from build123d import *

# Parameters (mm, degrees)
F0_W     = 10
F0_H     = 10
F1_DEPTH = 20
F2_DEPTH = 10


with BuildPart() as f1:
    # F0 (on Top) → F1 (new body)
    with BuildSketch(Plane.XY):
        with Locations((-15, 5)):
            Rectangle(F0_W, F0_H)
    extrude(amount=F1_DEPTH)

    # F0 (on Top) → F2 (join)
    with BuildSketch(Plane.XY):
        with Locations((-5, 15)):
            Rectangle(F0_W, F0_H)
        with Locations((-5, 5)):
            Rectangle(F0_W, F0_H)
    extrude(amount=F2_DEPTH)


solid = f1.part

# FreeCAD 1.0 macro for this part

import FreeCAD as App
import Part
import Sketcher

V = App.Vector
Q = App.Units.Quantity

doc = App.newDocument("Part")
body = doc.addObject("PartDesign::Body", "Body")

# Sketch on XY plane
sketch1 = body.newObject("Sketcher::SketchObject", "Sketch")
sketch1.AttachmentSupport = (doc.getObject("XY_Plane"), [""])
sketch1.MapMode = "FlatFace"
sketch1.addGeometry([
    Part.LineSegment(V(-20, 10, 0), V(-20, 0, 0)),
    Part.LineSegment(V(-20, 0, 0), V(-10, 0, 0)),
    Part.LineSegment(V(-10, 0, 0), V(-10, 10, 0)),
    Part.LineSegment(V(-10, 10, 0), V(-20, 10, 0)),
], False)
sketch1.addConstraint([
    Sketcher.Constraint("Coincident", 0, 2, 1, 1),
    Sketcher.Constraint("Coincident", 1, 2, 2, 1),
    Sketcher.Constraint("Coincident", 2, 2, 3, 1),
    Sketcher.Constraint("Coincident", 3, 2, 0, 1),
    Sketcher.Constraint("Vertical", 0),
    Sketcher.Constraint("Horizontal", 1),
    Sketcher.Constraint("Vertical", 2),
    Sketcher.Constraint("Horizontal", 3),
    Sketcher.Constraint("PointOnObject", 0, 2, -1),
    Sketcher.Constraint("Equal", 3, 0),
    Sketcher.Constraint("DistanceX", 1, 1, 1, 2, Q("10 mm")),
    Sketcher.Constraint("DistanceX", 0, 2, -1, 1, Q("20 mm")),
])
pad1 = body.newObject("PartDesign::Pad", "Pad")
pad1.Profile = sketch1
pad1.Length = 20

# Sketch on XY plane
sketch2 = body.newObject("Sketcher::SketchObject", "Sketch001")
sketch2.AttachmentSupport = (doc.getObject("XY_Plane"), [""])
sketch2.MapMode = "FlatFace"
sketch2.addGeometry([
    Part.LineSegment(V(-10, 20, 0), V(-10, 0, 0)),
    Part.LineSegment(V(-10, 0, 0), V(0, 0, 0)),
    Part.LineSegment(V(0, 0, 0), V(0, 20, 0)),
    Part.LineSegment(V(0, 20, 0), V(-10, 20, 0)),
], False)
sketch2.addConstraint([
    Sketcher.Constraint("Coincident", 0, 2, 1, 1),
    Sketcher.Constraint("Coincident", 1, 2, 2, 1),
    Sketcher.Constraint("Coincident", 2, 2, 3, 1),
    Sketcher.Constraint("Coincident", 3, 2, 0, 1),
    Sketcher.Constraint("Vertical", 0),
    Sketcher.Constraint("Horizontal", 1),
    Sketcher.Constraint("Vertical", 2),
    Sketcher.Constraint("Horizontal", 3),
    Sketcher.Constraint("Coincident", 1, 2, -1, 1),
    Sketcher.Constraint("DistanceX", 1, 1, 1, 2, Q("10 mm")),
    Sketcher.Constraint("DistanceY", 0, 2, 0, 1, Q("20 mm")),
])
pad2 = body.newObject("PartDesign::Pad", "Pad001")
pad2.Profile = sketch2
pad2.Length = 10

doc.recompute()
